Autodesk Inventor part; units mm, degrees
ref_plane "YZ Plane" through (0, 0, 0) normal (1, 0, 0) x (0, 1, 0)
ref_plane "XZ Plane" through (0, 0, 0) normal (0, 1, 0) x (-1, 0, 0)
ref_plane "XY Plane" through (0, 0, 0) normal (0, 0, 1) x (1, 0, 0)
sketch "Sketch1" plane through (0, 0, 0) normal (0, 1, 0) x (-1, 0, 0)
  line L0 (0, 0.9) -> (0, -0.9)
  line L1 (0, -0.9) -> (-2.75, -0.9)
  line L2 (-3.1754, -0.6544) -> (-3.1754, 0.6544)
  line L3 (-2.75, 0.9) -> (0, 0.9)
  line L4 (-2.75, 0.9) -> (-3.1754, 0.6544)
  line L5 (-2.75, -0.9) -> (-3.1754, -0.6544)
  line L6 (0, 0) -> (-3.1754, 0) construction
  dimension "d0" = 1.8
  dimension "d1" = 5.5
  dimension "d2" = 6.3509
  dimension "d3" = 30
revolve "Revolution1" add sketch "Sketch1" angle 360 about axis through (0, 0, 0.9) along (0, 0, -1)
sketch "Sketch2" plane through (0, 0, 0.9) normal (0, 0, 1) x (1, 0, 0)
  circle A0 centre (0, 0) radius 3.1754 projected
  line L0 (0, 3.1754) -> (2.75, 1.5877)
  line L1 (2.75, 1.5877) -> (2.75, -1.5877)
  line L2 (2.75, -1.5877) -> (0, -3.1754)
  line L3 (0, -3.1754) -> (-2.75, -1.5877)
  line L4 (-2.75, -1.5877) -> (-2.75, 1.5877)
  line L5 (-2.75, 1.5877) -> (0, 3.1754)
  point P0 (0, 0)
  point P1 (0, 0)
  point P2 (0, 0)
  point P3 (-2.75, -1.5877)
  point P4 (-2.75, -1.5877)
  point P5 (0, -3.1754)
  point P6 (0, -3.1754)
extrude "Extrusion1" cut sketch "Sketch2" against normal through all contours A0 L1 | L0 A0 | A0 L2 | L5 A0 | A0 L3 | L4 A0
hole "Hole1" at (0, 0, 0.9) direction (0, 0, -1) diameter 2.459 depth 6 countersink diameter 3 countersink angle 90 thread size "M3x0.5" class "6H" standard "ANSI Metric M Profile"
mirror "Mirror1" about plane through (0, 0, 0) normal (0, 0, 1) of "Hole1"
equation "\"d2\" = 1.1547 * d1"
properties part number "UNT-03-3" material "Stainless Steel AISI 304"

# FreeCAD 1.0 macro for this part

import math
import FreeCAD as App
import Part
import Sketcher
Q = App.Units.Quantity


def add_polygon(sketch, points):
    """Adds a closed chain of lines whose ends are joined by coincident constraints."""
    first, n = sketch.GeometryCount, len(points)
    for a, b in zip(points, points[1:] + points[:1]):
        sketch.addGeometry(Part.LineSegment(App.Vector(*a, 0), App.Vector(*b, 0)), False)
    for i in range(n):
        sketch.addConstraint(Sketcher.Constraint("Coincident", first + i, 2, first + (i + 1) % n, 1))

doc = App.newDocument("Part")
body = doc.addObject("PartDesign::Body", "Body")

# Sketch on XZ plane
sketch1 = doc.addObject("Sketcher::SketchObject", "Sketch")
body.addObject(sketch1)
sketch1.AttachmentSupport = (doc.XZ_Plane, [""])
sketch1.MapMode = "FlatFace"
add_polygon(sketch1, [(0, -0.9), (0, 0.9), (2.75, 0.9), (3.1754, 0.6544), (3.1754, -0.6544), (2.75, -0.9)])  # lines 0-5
sketch1.addConstraint([
    Sketcher.Constraint("Vertical", 0),
    Sketcher.Constraint("Horizontal", 1),
    Sketcher.Constraint("Vertical", 3),
    Sketcher.Constraint("Horizontal", 5),
    Sketcher.Constraint("Symmetric", 0, 2, 5, 2, -1, 1),
    Sketcher.Constraint("Vertical", 1, 2, 4, 2),
    Sketcher.Constraint("Equal", 2, 4),
    Sketcher.Constraint("Angle", 2, Q("-29.9995 deg")),
    Sketcher.Constraint("DistanceY", 0, 1, 0, 2, Q("1.8 mm")),
    Sketcher.Constraint("DistanceX", 1, 1, 1, 2, Q("2.75 mm")),
    Sketcher.Constraint("DistanceY", 3, 2, 3, 1, Q("1.3088 mm")),
])
revolution = doc.addObject("PartDesign::Revolution", "Revolution")
body.addObject(revolution)
revolution.Profile = sketch1
revolution.ReferenceAxis = (sketch1, ["V_Axis"])
revolution.Angle = 360

# Sketch on XY plane
sketch2 = doc.addObject("Sketcher::SketchObject", "Sketch001")
body.addObject(sketch2)
sketch2.AttachmentSupport = (doc.XY_Plane, [""])
sketch2.MapMode = "FlatFace"
sketch2.AttachmentOffset = App.Placement(App.Vector(0, 0, 0.9), App.Rotation())
sketch2.addGeometry([
    Part.ArcOfCircle(Part.Circle(App.Vector(0, 0, 0), App.Vector(0, 0, 1), 3.1754), math.radians(-29.999793), math.radians(29.999793)),  # 0
    Part.LineSegment(App.Vector(2.75, -1.5877, 0), App.Vector(2.75, 1.5877, 0)),  # 1
    Part.LineSegment(App.Vector(0, 3.1754, 0), App.Vector(2.75, 1.5877, 0)),  # 2
    Part.ArcOfCircle(Part.Circle(App.Vector(0, 0, 0), App.Vector(0, 0, 1), 3.1754), math.radians(29.999793), math.radians(90)),  # 3
    Part.ArcOfCircle(Part.Circle(App.Vector(0, 0, 0), App.Vector(0, 0, 1), 3.1754), math.radians(-90), math.radians(-29.999793)),  # 4
    Part.LineSegment(App.Vector(0, -3.1754, 0), App.Vector(2.75, -1.5877, 0)),  # 5
    Part.LineSegment(App.Vector(-2.75, 1.5877, 0), App.Vector(0, 3.1754, 0)),  # 6
    Part.ArcOfCircle(Part.Circle(App.Vector(0, 0, 0), App.Vector(0, 0, 1), 3.1754), math.radians(90), math.radians(150.000207)),  # 7
    Part.ArcOfCircle(Part.Circle(App.Vector(0, 0, 0), App.Vector(0, 0, 1), 3.1754), math.radians(-150.000207), math.radians(-90)),  # 8
    Part.LineSegment(App.Vector(0, -3.1754, 0), App.Vector(-2.75, -1.5877, 0)),  # 9
    Part.LineSegment(App.Vector(-2.75, -1.5877, 0), App.Vector(-2.75, 1.5877, 0)),  # 10
    Part.ArcOfCircle(Part.Circle(App.Vector(0, 0, 0), App.Vector(0, 0, 1), 3.1754), math.radians(150.000207), math.radians(209.999793)),  # 11
], False)
sketch2.addConstraint([
    Sketcher.Constraint("Coincident", 0, 1, 1, 1),
    Sketcher.Constraint("Coincident", 1, 2, 0, 2),
    Sketcher.Constraint("Coincident", 2, 1, 3, 2),
    Sketcher.Constraint("Coincident", 3, 1, 2, 2),
    Sketcher.Constraint("Coincident", 4, 1, 5, 1),
    Sketcher.Constraint("Coincident", 5, 2, 4, 2),
    Sketcher.Constraint("Coincident", 6, 1, 7, 2),
    Sketcher.Constraint("Coincident", 7, 1, 6, 2),
    Sketcher.Constraint("Coincident", 8, 1, 9, 2),
    Sketcher.Constraint("Coincident", 9, 1, 8, 2),
    Sketcher.Constraint("Coincident", 10, 1, 11, 2),
    Sketcher.Constraint("Coincident", 11, 1, 10, 2),
    Sketcher.Constraint("Vertical", 1),
    Sketcher.Constraint("Vertical", 10),
    Sketcher.Constraint("Coincident", 0, 3, -1, 1),
    Sketcher.Constraint("Coincident", 3, 3, -1, 1),
    Sketcher.Constraint("Coincident", 4, 3, -1, 1),
    Sketcher.Constraint("Coincident", 7, 3, -1, 1),
    Sketcher.Constraint("Coincident", 8, 3, -1, 1),
    Sketcher.Constraint("Coincident", 11, 3, -1, 1),
    Sketcher.Constraint("Coincident", 3, 1, 1, 2),
    Sketcher.Constraint("Coincident", 5, 2, 0, 1),
    Sketcher.Constraint("Coincident", 7, 1, 2, 1),
    Sketcher.Constraint("Coincident", 9, 1, 4, 1),
    Sketcher.Constraint("Coincident", 10, 1, 8, 1),
    Sketcher.Constraint("PointOnObject", 2, 1, -2),
    Sketcher.Constraint("PointOnObject", 4, 1, -2),
    Sketcher.Constraint("Parallel", 5, 6),
    Sketcher.Constraint("Parallel", 2, 9),
    Sketcher.Constraint("Angle", 2, Q("-29.9998 deg")),
    Sketcher.Constraint("Radius", 0, Q("3.1754 mm")),
])
pocket1 = doc.addObject("PartDesign::Pocket", "Pocket")
body.addObject(pocket1)
pocket1.Profile = sketch2
pocket1.Type = "ThroughAll"

# Sketch on XY plane
sketch3 = doc.addObject("Sketcher::SketchObject", "Sketch002")
body.addObject(sketch3)
sketch3.AttachmentSupport = (doc.XY_Plane, [""])
sketch3.MapMode = "FlatFace"
sketch3.AttachmentOffset = App.Placement(App.Vector(0, 0, 0.9), App.Rotation())
sketch3.addGeometry(Part.Circle(App.Vector(0, 0, 0), App.Vector(0, 0, 1), 1.2295), False)
sketch3.addConstraint([
    Sketcher.Constraint("Coincident", 0, 3, -1, 1),
    Sketcher.Constraint("Diameter", 0, Q("2.459 mm")),
])
doc.recompute()
hole = doc.addObject("PartDesign::Hole", "Hole")
body.addObject(hole)
hole.Profile = sketch3
hole.ThreadType = "None"
hole.Diameter = 2.459
hole.DepthType = "Dimension"
hole.Depth = 6
hole.DrillPoint = "Flat"
hole.HoleCutType = "Countersink"
hole.HoleCutDiameter = 3
hole.HoleCutCountersinkAngle = 90
doc.recompute()

mirrored = doc.addObject("PartDesign::Mirrored", "Mirrored")
body.addObject(mirrored)
mirrored.Originals = [hole]
mirrored.MirrorPlane = (doc.XY_Plane, [""])
body.Tip = mirrored

doc.recompute()
